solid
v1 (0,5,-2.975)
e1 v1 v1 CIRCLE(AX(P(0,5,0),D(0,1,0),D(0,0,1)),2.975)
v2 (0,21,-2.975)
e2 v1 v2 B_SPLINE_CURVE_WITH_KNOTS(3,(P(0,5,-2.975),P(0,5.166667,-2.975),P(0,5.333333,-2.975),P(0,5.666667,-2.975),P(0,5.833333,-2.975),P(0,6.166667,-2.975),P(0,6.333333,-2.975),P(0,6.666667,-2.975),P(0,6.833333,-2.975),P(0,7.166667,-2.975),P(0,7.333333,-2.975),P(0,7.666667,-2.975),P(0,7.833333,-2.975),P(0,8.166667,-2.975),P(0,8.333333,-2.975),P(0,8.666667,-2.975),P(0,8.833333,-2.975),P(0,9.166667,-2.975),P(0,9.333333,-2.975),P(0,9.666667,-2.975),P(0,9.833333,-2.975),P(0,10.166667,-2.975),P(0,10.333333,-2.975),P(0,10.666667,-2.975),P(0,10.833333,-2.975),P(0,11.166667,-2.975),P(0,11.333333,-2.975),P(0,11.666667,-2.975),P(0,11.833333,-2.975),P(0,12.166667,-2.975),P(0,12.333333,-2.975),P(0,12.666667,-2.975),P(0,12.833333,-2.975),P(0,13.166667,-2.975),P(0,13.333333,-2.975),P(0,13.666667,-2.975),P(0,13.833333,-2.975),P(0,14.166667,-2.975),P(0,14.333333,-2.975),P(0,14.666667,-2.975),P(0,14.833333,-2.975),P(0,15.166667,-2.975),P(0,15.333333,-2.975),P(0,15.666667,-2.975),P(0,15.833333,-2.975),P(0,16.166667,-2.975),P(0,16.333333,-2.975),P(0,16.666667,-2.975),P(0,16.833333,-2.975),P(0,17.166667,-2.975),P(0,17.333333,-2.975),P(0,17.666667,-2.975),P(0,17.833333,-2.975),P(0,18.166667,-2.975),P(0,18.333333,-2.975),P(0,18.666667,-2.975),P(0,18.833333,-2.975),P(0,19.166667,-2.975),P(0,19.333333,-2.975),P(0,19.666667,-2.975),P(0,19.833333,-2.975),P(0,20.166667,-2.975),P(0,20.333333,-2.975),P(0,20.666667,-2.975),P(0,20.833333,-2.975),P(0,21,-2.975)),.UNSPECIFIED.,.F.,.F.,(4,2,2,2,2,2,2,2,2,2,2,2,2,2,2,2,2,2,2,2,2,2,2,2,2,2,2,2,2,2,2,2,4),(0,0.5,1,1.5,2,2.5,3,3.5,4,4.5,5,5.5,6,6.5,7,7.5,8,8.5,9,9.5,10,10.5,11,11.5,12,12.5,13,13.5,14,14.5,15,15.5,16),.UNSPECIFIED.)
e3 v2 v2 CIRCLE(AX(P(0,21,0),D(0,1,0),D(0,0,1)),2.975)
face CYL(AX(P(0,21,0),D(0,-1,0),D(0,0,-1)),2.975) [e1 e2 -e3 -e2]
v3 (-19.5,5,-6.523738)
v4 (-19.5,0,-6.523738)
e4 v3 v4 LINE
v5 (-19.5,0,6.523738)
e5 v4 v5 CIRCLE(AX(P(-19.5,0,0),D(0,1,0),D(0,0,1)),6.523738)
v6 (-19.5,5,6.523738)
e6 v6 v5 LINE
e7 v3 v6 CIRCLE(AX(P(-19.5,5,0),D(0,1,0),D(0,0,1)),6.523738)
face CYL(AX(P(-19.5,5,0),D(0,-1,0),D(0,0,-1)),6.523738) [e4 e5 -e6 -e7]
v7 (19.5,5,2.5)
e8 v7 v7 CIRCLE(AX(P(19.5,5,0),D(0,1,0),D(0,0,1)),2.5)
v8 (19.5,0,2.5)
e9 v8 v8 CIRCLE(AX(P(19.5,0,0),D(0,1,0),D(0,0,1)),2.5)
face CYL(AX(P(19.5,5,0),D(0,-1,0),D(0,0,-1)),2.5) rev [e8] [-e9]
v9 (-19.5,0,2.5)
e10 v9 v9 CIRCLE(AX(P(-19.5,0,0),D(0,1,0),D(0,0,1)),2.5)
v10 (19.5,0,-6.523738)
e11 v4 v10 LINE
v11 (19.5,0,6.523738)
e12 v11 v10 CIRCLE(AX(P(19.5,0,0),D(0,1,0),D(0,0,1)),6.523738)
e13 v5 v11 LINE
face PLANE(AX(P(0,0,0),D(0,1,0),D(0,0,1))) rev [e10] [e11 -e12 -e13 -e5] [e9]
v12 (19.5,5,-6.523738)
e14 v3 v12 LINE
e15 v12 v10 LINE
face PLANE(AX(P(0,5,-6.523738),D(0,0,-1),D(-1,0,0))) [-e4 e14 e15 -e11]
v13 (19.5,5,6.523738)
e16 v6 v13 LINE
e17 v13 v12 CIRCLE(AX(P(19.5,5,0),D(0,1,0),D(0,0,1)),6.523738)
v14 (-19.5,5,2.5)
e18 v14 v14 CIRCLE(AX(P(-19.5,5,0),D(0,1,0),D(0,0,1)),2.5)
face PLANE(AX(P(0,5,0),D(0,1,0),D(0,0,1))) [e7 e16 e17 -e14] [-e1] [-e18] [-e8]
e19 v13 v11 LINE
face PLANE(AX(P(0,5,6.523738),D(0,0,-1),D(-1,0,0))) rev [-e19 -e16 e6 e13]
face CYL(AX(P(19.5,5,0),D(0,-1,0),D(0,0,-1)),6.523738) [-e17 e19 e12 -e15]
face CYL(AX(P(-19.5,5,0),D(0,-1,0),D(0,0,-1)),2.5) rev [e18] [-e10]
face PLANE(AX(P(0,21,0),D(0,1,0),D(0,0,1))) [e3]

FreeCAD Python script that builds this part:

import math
import FreeCAD as App
import Part
import Sketcher

V = App.Vector
Q = App.Units.Quantity

doc = App.newDocument("Part")
params = doc.addObject("Spreadsheet::Sheet", "Params")
for row, (alias, value) in enumerate([
    ("sketch1_diameter", "5 mm"),
    ("sketch1_diameter2", "5.95 mm"),
    ("sketch1_width", "39 mm"),
    ("pad1_length", "5 mm"),
    ("sketch2_diameter", "5.95 mm"),
    ("pad2_length", "21 mm"),
], start=1):
    params.set(f"A{row}", alias)
    params.set(f"B{row}", "=" + value)
    params.setAlias(f"B{row}", alias)

body = doc.addObject("PartDesign::Body", "Body")

# Sketch on XZ plane
sketch1 = body.newObject("Sketcher::SketchObject", "Sketch")
sketch1.AttachmentSupport = (doc.getObject("XZ_Plane"), [""])
sketch1.MapMode = "FlatFace"
sketch1.addGeometry(Part.LineSegment(V(19.5, -6.523738, 0), V(-19.5, -6.523738, 0)), False)
sketch1.addGeometry(Part.ArcOfCircle(Part.Circle(V(-19.5, 0, 0), V(0, 0, 1), 6.523738), math.radians(90), math.radians(270)), False)
sketch1.addGeometry(Part.LineSegment(V(-19.5, 6.523738, 0), V(19.5, 6.523738, 0)), False)
sketch1.addGeometry(Part.ArcOfCircle(Part.Circle(V(19.5, 0, 0), V(0, 0, 1), 6.523738), math.radians(-90), math.radians(90)), False)
sketch1.addGeometry(Part.Circle(V(19.5, 0, 0), V(0, 0, 1), 2.5), False)
sketch1.addGeometry(Part.Circle(V(0, 0, 0), V(0, 0, 1), 2.975), False)
sketch1.addGeometry(Part.Circle(V(-19.5, 0, 0), V(0, 0, 1), 2.5), False)
sketch1.addConstraint(Sketcher.Constraint("Tangent", 0, 2, 1, 2))
sketch1.addConstraint(Sketcher.Constraint("Tangent", 1, 1, 2, 1))
sketch1.addConstraint(Sketcher.Constraint("Tangent", 2, 2, 3, 2))
sketch1.addConstraint(Sketcher.Constraint("Tangent", 3, 1, 0, 1))
sketch1.addConstraint(Sketcher.Constraint("Horizontal", 0))
sketch1.addConstraint(Sketcher.Constraint("Horizontal", 2))
sketch1.addConstraint(Sketcher.Constraint("Coincident", 5, 3, -1, 1))
sketch1.addConstraint(Sketcher.Constraint("Coincident", 4, 3, 3, 3))
sketch1.addConstraint(Sketcher.Constraint("Coincident", 6, 3, 1, 3))
sketch1.addConstraint(Sketcher.Constraint("Equal", 4, 6))
sketch1.addConstraint(Sketcher.Constraint("Symmetric", 1, 3, 3, 3, -1, 1))
sketch1.addConstraint(Sketcher.Constraint("Diameter", 4, Q("5 mm")))
sketch1.addConstraint(Sketcher.Constraint("Diameter", 5, Q("5.95 mm")))
sketch1.addConstraint(Sketcher.Constraint("DistanceX", 0, 2, 0, 1, Q("39 mm")))
sketch1.addConstraint(Sketcher.Constraint("Radius", 1, Q("6.523738 mm")))
sketch1.setExpression("Constraints[11]", "Params.sketch1_diameter")
sketch1.setExpression("Constraints[12]", "Params.sketch1_diameter2")
sketch1.setExpression("Constraints[13]", "Params.sketch1_width")
pad1 = body.newObject("PartDesign::Pad", "Pad")
pad1.Profile = sketch1
pad1.setExpression("Length", "Params.pad1_length")
pad1.Reversed = True

# Sketch on XZ plane
sketch2 = body.newObject("Sketcher::SketchObject", "Sketch001")
sketch2.AttachmentSupport = (doc.getObject("XZ_Plane"), [""])
sketch2.MapMode = "FlatFace"
sketch2.addGeometry(Part.Circle(V(0, 0, 0), V(0, 0, 1), 2.975), False)
sketch2.addConstraint(Sketcher.Constraint("Coincident", 0, 3, -1, 1))
sketch2.addConstraint(Sketcher.Constraint("Diameter", 0, Q("5.95 mm")))
sketch2.setExpression("Constraints[1]", "Params.sketch2_diameter")
pad2 = body.newObject("PartDesign::Pad", "Pad001")
pad2.Profile = sketch2
pad2.setExpression("Length", "Params.pad2_length")
pad2.Reversed = True

doc.recompute()
